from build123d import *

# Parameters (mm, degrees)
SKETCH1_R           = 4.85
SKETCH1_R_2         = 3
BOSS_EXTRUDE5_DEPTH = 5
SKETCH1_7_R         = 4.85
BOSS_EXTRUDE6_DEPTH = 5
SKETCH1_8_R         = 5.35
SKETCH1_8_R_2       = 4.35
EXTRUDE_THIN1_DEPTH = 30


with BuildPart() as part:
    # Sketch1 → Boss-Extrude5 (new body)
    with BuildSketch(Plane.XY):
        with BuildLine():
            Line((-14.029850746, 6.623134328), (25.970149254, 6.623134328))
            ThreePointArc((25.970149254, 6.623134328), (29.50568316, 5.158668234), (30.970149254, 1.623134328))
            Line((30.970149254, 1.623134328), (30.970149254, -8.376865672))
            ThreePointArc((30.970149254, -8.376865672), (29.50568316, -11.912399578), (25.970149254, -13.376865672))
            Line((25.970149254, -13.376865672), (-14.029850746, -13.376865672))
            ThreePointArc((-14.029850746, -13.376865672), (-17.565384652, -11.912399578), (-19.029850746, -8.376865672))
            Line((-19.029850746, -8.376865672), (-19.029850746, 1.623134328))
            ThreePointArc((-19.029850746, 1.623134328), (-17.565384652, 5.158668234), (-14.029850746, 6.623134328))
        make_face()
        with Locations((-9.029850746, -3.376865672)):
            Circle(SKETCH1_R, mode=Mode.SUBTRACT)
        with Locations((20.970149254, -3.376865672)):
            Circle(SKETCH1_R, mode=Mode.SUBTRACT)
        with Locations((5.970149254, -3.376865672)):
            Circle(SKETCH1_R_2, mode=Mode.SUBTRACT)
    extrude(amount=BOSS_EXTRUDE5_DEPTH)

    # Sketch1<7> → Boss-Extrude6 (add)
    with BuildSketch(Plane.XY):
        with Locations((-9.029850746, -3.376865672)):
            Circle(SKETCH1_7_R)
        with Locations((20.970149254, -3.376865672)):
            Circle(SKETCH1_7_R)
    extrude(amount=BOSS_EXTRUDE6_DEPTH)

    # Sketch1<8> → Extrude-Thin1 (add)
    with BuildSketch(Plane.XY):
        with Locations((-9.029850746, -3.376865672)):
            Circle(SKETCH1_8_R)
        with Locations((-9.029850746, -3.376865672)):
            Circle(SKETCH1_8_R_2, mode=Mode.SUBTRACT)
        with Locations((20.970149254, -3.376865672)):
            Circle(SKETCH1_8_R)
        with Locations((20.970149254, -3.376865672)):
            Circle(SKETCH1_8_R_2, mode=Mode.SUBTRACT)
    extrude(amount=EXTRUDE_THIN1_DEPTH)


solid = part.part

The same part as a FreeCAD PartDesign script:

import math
import FreeCAD as App
import Part
import Sketcher

V = App.Vector

doc = App.newDocument("Part")
params = doc.addObject("Spreadsheet::Sheet", "Params")
for row, (alias, value) in enumerate([
    ("sketch1_diameter", "6 mm"),
    ("sketch1_radius", "5 mm"),
    ("sketch1_diameter2", "9.7 mm"),
    ("sketch1_width", "40 mm"),
    ("sketch1_height", "10 mm"),
    ("pad1_length", "5 mm"),
    ("sketch2_diameter", "9.7 mm"),
    ("pad2_length", "5 mm"),
    ("sketch3_diameter", "10.7 mm"),
    ("sketch3_diameter2", "8.7 mm"),
    ("pad3_length", "30 mm"),
], start=1):
    params.set(f"A{row}", alias)
    params.set(f"B{row}", "=" + value)
    params.setAlias(f"B{row}", alias)

body = doc.addObject("PartDesign::Body", "Body")

# Sketch on XY plane
sketch1 = body.newObject("Sketcher::SketchObject", "Sketch")
sketch1.AttachmentSupport = (doc.getObject("XY_Plane"), [""])
sketch1.MapMode = "FlatFace"
sketch1.addGeometry([
    Part.LineSegment(V(25.970149, 6.623134, 0), V(-14.029851, 6.623134, 0)),  # 0
    Part.ArcOfCircle(Part.Circle(V(-14.029851, 1.623134, 0), V(0, 0, 1), 5), math.radians(90), math.radians(180)),  # 1
    Part.LineSegment(V(-19.029851, 1.623134, 0), V(-19.029851, -8.376866, 0)),  # 2
    Part.ArcOfCircle(Part.Circle(V(-14.029851, -8.376866, 0), V(0, 0, 1), 5), math.radians(180), math.radians(270)),  # 3
    Part.LineSegment(V(-14.029851, -13.376866, 0), V(25.970149, -13.376866, 0)),  # 4
    Part.ArcOfCircle(Part.Circle(V(25.970149, -8.376866, 0), V(0, 0, 1), 5), math.radians(-90), math.radians(0)),  # 5
    Part.LineSegment(V(30.970149, -8.376866, 0), V(30.970149, 1.623134, 0)),  # 6
    Part.ArcOfCircle(Part.Circle(V(25.970149, 1.623134, 0), V(0, 0, 1), 5), math.radians(0), math.radians(90)),  # 7
    Part.Circle(V(20.970149, -3.376866, 0), V(0, 0, 1), 4.85),  # 8
    Part.Circle(V(5.970149, -3.376866, 0), V(0, 0, 1), 3),  # 9
    Part.Circle(V(-9.029851, -3.376866, 0), V(0, 0, 1), 4.85),  # 10
], False)
sketch1.addConstraint([
    Sketcher.Constraint("Tangent", 0, 2, 1, 1),
    Sketcher.Constraint("Tangent", 1, 2, 2, 1),
    Sketcher.Constraint("Tangent", 2, 2, 3, 1),
    Sketcher.Constraint("Tangent", 3, 2, 4, 1),
    Sketcher.Constraint("Tangent", 4, 2, 5, 1),
    Sketcher.Constraint("Tangent", 5, 2, 6, 1),
    Sketcher.Constraint("Tangent", 6, 2, 7, 1),
    Sketcher.Constraint("Tangent", 7, 2, 0, 1),
    Sketcher.Constraint("Horizontal", 0),
    Sketcher.Constraint("Vertical", 2),
    Sketcher.Constraint("Horizontal", 4),
    Sketcher.Constraint("Vertical", 6),
    Sketcher.Constraint("Equal", 1, 3),
    Sketcher.Constraint("Equal", 3, 5),
    Sketcher.Constraint("Equal", 5, 7),
    Sketcher.Constraint("Equal", 8, 10),
    Sketcher.Constraint("Horizontal", 8, 3, 9, 3),
    Sketcher.Constraint("Horizontal", 9, 3, 10, 3),
    Sketcher.Constraint("Diameter", 9, 6.0),
    Sketcher.Constraint("Radius", 1, 5.0),
    Sketcher.Constraint("Diameter", 8, 9.7),
    Sketcher.Constraint("DistanceX", 0, 2, 0, 1, 40.0),
    Sketcher.Constraint("DistanceY", 2, 2, 2, 1, 10.0),
    Sketcher.Constraint("DistanceX", 8, 3, 5, 3, 5.0),
    Sketcher.Constraint("DistanceY", 5, 3, 8, 3, 5.0),
    Sketcher.Constraint("DistanceX", 9, 3, 8, 3, 15.0),
    Sketcher.Constraint("DistanceX", 3, 3, 10, 3, 5.0),
    Sketcher.Constraint("DistanceX", 1, 3, -1, 1, 14.029851),
    Sketcher.Constraint("DistanceY", -1, 1, 1, 3, 1.623134),
])
sketch1.setExpression("Constraints[18]", "Params.sketch1_diameter")
sketch1.setExpression("Constraints[19]", "Params.sketch1_radius")
sketch1.setExpression("Constraints[20]", "Params.sketch1_diameter2")
sketch1.setExpression("Constraints[21]", "Params.sketch1_width")
sketch1.setExpression("Constraints[22]", "Params.sketch1_height")
pad1 = body.newObject("PartDesign::Pad", "Pad")
pad1.Profile = sketch1
pad1.setExpression("Length", "Params.pad1_length")

# Sketch on XY plane
sketch2 = body.newObject("Sketcher::SketchObject", "Sketch001")
sketch2.AttachmentSupport = (doc.getObject("XY_Plane"), [""])
sketch2.MapMode = "FlatFace"
sketch2.addGeometry([
    Part.Circle(V(-9.029851, -3.376866, 0), V(0, 0, 1), 4.85),
    Part.Circle(V(20.970149, -3.376866, 0), V(0, 0, 1), 4.85),
], False)
sketch2.addConstraint([
    Sketcher.Constraint("Equal", 0, 1),
    Sketcher.Constraint("Horizontal", 0, 3, 1, 3),
    Sketcher.Constraint("Diameter", 0, 9.7),
    Sketcher.Constraint("DistanceX", 0, 3, 1, 3, 30.0),
    Sketcher.Constraint("DistanceX", 0, 3, -1, 1, 9.029851),
    Sketcher.Constraint("DistanceY", 0, 3, -1, 1, 3.376866),
])
sketch2.setExpression("Constraints[2]", "Params.sketch2_diameter")
pad2 = body.newObject("PartDesign::Pad", "Pad001")
pad2.Profile = sketch2
pad2.setExpression("Length", "Params.pad2_length")

# Sketch on XY plane
sketch3 = body.newObject("Sketcher::SketchObject", "Sketch002")
sketch3.AttachmentSupport = (doc.getObject("XY_Plane"), [""])
sketch3.MapMode = "FlatFace"
sketch3.addGeometry([
    Part.Circle(V(-9.029851, -3.376866, 0), V(0, 0, 1), 5.35),
    Part.Circle(V(-9.029851, -3.376866, 0), V(0, 0, 1), 4.35),
    Part.Circle(V(20.970149, -3.376866, 0), V(0, 0, 1), 5.35),
    Part.Circle(V(20.970149, -3.376866, 0), V(0, 0, 1), 4.35),
], False)
sketch3.addConstraint([
    Sketcher.Constraint("Coincident", 1, 3, 0, 3),
    Sketcher.Constraint("Coincident", 3, 3, 2, 3),
    Sketcher.Constraint("Equal", 0, 2),
    Sketcher.Constraint("Equal", 1, 3),
    Sketcher.Constraint("Horizontal", 1, 3, 2, 3),
    Sketcher.Constraint("Diameter", 0, 10.7),
    Sketcher.Constraint("Diameter", 1, 8.7),
    Sketcher.Constraint("DistanceX", 0, 3, 2, 3, 30.0),
    Sketcher.Constraint("DistanceX", 0, 3, -1, 1, 9.029851),
    Sketcher.Constraint("DistanceY", 0, 3, -1, 1, 3.376866),
])
sketch3.setExpression("Constraints[5]", "Params.sketch3_diameter")
sketch3.setExpression("Constraints[6]", "Params.sketch3_diameter2")
pad3 = body.newObject("PartDesign::Pad", "Pad002")
pad3.Profile = sketch3
pad3.setExpression("Length", "Params.pad3_length")

doc.recompute()
